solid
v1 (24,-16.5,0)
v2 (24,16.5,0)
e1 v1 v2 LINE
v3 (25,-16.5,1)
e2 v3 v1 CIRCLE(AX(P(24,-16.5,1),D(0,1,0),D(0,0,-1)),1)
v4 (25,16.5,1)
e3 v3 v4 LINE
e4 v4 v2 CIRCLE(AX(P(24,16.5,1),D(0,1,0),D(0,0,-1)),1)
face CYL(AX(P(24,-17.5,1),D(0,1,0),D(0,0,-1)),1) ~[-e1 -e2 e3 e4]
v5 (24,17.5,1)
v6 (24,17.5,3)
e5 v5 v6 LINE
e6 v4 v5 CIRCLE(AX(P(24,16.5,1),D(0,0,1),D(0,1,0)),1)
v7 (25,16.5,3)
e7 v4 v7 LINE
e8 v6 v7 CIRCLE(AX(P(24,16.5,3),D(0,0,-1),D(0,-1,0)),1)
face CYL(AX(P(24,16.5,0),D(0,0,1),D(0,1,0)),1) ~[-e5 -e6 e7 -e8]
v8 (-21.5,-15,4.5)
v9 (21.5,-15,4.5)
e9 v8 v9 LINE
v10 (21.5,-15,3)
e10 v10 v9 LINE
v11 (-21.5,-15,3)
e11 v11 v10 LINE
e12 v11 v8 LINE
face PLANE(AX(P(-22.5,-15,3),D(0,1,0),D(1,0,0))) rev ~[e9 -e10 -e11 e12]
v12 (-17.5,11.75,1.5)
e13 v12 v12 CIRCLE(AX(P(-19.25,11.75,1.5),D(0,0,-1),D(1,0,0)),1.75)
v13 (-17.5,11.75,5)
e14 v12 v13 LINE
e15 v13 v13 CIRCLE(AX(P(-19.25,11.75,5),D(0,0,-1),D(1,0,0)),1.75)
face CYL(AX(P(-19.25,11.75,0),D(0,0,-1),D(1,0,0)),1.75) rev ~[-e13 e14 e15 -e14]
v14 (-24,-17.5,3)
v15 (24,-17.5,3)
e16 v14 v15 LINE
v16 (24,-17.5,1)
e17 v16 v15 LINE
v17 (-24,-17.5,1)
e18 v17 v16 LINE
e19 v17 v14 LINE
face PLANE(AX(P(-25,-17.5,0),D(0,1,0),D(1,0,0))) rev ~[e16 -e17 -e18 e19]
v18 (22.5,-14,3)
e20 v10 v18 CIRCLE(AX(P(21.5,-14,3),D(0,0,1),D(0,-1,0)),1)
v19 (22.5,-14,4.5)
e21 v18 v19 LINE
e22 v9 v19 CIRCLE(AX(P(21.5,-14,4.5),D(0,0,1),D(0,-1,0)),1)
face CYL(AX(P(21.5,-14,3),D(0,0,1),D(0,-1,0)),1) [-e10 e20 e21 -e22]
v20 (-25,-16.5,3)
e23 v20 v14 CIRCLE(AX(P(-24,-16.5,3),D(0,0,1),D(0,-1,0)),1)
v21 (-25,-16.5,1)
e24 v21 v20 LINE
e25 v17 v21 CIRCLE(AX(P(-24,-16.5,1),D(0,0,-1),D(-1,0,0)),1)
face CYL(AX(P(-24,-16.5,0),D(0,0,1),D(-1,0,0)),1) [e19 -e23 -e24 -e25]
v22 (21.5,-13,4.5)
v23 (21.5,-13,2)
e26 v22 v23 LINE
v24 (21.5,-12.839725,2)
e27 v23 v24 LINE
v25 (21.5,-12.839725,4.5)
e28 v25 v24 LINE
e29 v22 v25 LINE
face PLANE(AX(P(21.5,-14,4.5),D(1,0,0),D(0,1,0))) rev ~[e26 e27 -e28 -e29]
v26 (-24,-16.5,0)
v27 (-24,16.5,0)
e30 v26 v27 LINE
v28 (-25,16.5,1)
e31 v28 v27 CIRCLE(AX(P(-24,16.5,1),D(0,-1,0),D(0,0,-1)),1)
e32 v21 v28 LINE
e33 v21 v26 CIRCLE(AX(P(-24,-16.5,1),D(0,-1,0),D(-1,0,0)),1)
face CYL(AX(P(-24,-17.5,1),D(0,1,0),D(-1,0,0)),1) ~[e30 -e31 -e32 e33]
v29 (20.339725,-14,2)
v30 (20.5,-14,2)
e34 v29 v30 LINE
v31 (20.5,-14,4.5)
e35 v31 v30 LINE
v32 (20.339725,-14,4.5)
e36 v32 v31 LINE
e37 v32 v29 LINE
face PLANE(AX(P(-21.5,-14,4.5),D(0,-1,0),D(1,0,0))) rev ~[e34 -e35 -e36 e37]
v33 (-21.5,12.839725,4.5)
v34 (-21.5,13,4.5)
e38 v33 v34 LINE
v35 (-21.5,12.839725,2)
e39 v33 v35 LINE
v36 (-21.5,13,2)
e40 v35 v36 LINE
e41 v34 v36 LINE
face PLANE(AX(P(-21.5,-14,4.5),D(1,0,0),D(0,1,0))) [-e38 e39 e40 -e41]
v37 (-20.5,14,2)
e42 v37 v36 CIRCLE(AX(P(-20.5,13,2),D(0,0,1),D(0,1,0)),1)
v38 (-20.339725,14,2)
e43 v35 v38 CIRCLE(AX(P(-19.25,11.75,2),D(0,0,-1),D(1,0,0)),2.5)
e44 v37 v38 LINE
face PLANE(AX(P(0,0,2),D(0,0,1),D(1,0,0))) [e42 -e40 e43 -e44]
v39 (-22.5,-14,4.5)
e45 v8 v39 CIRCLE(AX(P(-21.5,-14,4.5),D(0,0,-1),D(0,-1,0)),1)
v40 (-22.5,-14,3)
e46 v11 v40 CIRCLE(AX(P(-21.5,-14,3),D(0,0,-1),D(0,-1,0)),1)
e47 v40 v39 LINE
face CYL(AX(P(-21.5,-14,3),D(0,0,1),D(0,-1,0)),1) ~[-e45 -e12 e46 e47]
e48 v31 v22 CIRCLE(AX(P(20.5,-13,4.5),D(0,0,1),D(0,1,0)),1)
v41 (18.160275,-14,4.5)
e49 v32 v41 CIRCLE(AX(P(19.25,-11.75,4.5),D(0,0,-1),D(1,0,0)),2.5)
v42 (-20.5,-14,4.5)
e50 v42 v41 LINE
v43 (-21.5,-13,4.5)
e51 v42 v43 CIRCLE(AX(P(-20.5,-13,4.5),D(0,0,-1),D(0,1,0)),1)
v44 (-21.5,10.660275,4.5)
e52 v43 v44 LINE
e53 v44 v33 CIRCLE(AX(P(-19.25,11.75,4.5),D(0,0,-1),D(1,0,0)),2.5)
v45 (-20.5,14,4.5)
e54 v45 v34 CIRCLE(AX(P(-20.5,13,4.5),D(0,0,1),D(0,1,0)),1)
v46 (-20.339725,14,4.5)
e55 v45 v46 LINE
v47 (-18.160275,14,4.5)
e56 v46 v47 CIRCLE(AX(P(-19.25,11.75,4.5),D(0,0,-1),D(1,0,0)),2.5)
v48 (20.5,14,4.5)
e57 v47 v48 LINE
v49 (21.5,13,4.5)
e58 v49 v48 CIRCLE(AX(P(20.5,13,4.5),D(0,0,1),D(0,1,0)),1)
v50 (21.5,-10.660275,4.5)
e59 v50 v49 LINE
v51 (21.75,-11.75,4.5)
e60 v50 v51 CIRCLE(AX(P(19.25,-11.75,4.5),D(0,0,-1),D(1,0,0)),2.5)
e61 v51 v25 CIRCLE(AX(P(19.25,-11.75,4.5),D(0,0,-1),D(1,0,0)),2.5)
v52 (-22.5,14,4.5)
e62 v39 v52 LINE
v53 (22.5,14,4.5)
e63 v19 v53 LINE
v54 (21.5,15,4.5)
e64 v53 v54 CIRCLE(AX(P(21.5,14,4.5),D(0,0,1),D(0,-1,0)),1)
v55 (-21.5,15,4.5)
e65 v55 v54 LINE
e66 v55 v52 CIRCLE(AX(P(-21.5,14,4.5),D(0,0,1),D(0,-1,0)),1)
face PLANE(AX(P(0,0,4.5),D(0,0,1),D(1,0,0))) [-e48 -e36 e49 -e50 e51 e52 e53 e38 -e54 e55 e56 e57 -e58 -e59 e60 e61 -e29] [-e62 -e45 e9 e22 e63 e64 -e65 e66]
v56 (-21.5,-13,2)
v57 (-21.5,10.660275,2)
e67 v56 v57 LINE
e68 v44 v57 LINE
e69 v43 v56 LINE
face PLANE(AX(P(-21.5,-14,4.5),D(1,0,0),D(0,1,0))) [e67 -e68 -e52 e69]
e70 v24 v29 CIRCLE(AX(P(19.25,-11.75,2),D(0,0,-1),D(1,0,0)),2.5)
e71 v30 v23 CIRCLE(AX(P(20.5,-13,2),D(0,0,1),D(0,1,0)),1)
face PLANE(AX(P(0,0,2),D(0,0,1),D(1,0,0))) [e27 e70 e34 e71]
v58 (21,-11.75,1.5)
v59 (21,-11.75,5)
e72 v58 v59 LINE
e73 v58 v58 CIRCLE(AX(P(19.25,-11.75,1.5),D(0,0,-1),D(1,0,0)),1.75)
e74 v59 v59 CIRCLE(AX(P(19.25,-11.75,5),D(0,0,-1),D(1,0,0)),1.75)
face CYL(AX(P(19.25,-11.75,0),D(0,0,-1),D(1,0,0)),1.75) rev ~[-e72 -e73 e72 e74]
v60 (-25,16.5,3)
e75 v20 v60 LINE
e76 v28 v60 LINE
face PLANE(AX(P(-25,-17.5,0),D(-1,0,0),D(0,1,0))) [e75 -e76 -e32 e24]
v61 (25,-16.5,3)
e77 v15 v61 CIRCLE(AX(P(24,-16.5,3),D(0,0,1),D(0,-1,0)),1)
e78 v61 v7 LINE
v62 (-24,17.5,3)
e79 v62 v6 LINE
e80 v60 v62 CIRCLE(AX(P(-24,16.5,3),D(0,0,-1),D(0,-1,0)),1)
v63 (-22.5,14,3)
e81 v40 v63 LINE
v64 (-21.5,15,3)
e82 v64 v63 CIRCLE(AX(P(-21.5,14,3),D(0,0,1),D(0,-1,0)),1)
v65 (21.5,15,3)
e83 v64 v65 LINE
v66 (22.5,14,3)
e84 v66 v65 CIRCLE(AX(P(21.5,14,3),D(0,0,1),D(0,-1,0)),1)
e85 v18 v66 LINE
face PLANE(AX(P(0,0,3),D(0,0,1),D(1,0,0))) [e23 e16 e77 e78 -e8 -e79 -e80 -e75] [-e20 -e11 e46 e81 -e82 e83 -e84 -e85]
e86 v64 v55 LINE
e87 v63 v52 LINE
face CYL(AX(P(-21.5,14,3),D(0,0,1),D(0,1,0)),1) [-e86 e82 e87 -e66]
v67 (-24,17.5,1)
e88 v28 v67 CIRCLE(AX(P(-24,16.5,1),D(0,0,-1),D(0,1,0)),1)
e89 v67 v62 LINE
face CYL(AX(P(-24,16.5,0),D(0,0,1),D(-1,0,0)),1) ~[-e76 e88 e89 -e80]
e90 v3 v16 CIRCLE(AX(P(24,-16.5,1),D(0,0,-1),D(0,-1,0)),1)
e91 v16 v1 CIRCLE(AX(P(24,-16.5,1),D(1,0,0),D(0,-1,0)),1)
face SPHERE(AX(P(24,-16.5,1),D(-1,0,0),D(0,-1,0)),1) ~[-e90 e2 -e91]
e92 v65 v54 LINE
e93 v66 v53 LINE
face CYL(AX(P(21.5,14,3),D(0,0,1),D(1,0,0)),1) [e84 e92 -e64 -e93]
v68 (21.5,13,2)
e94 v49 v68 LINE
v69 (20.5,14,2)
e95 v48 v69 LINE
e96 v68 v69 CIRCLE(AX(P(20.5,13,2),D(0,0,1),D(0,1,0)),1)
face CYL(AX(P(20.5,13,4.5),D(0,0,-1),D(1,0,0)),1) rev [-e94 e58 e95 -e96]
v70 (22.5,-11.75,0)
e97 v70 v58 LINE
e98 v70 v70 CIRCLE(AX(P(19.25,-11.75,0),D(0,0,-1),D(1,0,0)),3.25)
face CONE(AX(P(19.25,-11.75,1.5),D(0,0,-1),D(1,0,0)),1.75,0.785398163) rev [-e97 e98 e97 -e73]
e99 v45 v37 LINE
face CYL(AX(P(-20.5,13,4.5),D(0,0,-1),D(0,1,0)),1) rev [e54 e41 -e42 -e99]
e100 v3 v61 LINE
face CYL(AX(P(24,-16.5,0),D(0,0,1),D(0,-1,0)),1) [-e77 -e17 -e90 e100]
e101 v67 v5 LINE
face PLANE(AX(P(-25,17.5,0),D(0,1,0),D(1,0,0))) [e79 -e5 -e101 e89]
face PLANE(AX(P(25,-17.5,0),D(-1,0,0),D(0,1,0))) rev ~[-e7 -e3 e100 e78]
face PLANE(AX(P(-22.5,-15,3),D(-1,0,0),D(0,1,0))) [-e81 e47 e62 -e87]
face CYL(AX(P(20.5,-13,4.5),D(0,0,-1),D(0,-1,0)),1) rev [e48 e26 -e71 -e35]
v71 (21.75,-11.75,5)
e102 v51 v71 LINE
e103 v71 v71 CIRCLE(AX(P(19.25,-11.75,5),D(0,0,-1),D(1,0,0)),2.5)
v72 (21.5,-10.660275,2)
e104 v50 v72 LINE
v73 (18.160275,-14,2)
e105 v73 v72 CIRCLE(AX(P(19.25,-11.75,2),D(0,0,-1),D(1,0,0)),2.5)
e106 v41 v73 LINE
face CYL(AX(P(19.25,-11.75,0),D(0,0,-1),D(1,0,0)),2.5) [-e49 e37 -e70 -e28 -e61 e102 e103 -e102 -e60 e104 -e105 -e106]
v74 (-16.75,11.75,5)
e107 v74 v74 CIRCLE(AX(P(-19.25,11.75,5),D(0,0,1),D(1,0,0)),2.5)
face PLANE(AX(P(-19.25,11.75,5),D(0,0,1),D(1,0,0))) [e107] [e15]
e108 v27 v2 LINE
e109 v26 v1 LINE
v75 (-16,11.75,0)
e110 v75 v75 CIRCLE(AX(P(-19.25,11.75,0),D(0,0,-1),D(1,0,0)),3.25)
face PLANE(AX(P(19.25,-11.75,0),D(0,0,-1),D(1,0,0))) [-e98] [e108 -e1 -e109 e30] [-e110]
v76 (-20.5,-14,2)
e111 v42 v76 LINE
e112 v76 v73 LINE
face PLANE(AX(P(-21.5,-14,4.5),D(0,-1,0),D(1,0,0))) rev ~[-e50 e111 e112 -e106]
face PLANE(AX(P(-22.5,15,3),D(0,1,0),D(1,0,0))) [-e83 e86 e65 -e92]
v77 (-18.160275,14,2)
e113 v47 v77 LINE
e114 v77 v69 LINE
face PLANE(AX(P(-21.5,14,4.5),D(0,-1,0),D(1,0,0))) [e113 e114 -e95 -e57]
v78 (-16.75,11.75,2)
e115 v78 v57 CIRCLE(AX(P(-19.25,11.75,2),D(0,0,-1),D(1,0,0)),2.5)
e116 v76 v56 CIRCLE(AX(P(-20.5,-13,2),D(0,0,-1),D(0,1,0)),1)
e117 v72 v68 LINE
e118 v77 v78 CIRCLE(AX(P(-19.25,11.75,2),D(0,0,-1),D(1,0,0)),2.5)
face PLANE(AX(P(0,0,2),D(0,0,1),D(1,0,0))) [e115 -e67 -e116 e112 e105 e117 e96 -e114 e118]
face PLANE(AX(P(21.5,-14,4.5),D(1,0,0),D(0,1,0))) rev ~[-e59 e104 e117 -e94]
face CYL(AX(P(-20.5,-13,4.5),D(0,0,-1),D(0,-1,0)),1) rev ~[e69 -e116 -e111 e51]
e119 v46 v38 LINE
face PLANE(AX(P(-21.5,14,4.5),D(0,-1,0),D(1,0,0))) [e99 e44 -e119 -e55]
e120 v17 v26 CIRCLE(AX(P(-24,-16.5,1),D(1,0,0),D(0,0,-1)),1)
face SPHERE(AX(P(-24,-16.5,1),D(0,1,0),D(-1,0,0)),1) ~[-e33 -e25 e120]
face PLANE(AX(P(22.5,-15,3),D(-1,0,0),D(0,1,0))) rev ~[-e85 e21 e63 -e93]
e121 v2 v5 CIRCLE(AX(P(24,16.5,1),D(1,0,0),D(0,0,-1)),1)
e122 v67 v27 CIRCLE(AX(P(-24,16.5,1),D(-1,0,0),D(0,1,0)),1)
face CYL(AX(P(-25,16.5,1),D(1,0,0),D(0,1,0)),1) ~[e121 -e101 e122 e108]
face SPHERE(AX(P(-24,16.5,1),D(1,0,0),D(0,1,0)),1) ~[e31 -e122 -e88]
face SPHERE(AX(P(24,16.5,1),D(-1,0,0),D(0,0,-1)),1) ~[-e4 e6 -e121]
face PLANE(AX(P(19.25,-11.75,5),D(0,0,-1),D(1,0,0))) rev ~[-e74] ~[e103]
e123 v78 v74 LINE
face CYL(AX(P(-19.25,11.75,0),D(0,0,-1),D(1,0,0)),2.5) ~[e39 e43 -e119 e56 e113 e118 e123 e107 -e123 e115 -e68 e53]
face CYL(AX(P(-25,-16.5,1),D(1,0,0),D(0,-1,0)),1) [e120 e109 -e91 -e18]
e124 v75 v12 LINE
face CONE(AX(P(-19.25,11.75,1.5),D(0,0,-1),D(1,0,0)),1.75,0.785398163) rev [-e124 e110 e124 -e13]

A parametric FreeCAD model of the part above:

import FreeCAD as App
import Part
import Sketcher
Q = App.Units.Quantity


def edges_at(feature, points):
    """Names of the edges that pass closest to the given points."""
    edges = feature.Shape.Edges
    near = lambda p: min(range(len(edges)), key=lambda i: edges[i].distToShape(Part.Vertex(*p))[0])
    return sorted({f"Edge{near(p) + 1}" for p in points})

doc = App.newDocument("Part")
body = doc.addObject("PartDesign::Body", "Body")

# Sketch on XY plane
sketch1 = doc.addObject("Sketcher::SketchObject", "Sketch")
body.addObject(sketch1)
sketch1.AttachmentSupport = (doc.XY_Plane, [""])
sketch1.MapMode = "FlatFace"
sketch1.addGeometry([
    Part.LineSegment(App.Vector(-25, 18, 0), App.Vector(-25, -18, 0)),
    Part.LineSegment(App.Vector(-25, -18, 0), App.Vector(25, -18, 0)),
    Part.LineSegment(App.Vector(25, -18, 0), App.Vector(25, 18, 0)),
    Part.LineSegment(App.Vector(25, 18, 0), App.Vector(-25, 18, 0)),
], False)
sketch1.addConstraint([
    Sketcher.Constraint("Coincident", 0, 2, 1, 1),
    Sketcher.Constraint("Coincident", 1, 2, 2, 1),
    Sketcher.Constraint("Coincident", 2, 2, 3, 1),
    Sketcher.Constraint("Coincident", 3, 2, 0, 1),
    Sketcher.Constraint("Vertical", 0),
    Sketcher.Constraint("Horizontal", 1),
    Sketcher.Constraint("Vertical", 2),
    Sketcher.Constraint("Horizontal", 3),
    Sketcher.Constraint("Symmetric", 0, 2, 2, 2, -1, 1),
    Sketcher.Constraint("DistanceX", 1, 1, 1, 2, Q("50 mm")),
    Sketcher.Constraint("DistanceY", 0, 2, 0, 1, Q("35 mm")),
])
pad1 = doc.addObject("PartDesign::Pad", "Pad")
body.addObject(pad1)
pad1.Profile = sketch1
pad1.Length = 3

# Sketch on XY plane
sketch2 = doc.addObject("Sketcher::SketchObject", "Sketch001")
body.addObject(sketch2)
sketch2.AttachmentSupport = (doc.XY_Plane, [""])
sketch2.MapMode = "FlatFace"
sketch2.AttachmentOffset = App.Placement(App.Vector(0, 0, 3), App.Rotation())
sketch2.addGeometry([
    Part.LineSegment(App.Vector(-22, 15, 0), App.Vector(-22, -15, 0)),
    Part.LineSegment(App.Vector(-22, -15, 0), App.Vector(22, -15, 0)),
    Part.LineSegment(App.Vector(22, -15, 0), App.Vector(22, 15, 0)),
    Part.LineSegment(App.Vector(22, 15, 0), App.Vector(-22, 15, 0)),
], False)
sketch2.addConstraint([
    Sketcher.Constraint("Coincident", 0, 2, 1, 1),
    Sketcher.Constraint("Coincident", 1, 2, 2, 1),
    Sketcher.Constraint("Coincident", 2, 2, 3, 1),
    Sketcher.Constraint("Coincident", 3, 2, 0, 1),
    Sketcher.Constraint("Vertical", 0),
    Sketcher.Constraint("Horizontal", 1),
    Sketcher.Constraint("Vertical", 2),
    Sketcher.Constraint("Horizontal", 3),
    Sketcher.Constraint("Symmetric", 0, 2, 2, 2, -1, 1),
    Sketcher.Constraint("DistanceX", 1, 1, 1, 2, Q("45 mm")),
    Sketcher.Constraint("DistanceY", 0, 2, 0, 1, Q("30 mm")),
])
pad2 = doc.addObject("PartDesign::Pad", "Pad001")
body.addObject(pad2)
pad2.Profile = sketch2
pad2.Length = 1.5

# Sketch on XY plane
sketch3 = doc.addObject("Sketcher::SketchObject", "Sketch002")
body.addObject(sketch3)
sketch3.AttachmentSupport = (doc.XY_Plane, [""])
sketch3.MapMode = "FlatFace"
sketch3.AttachmentOffset = App.Placement(App.Vector(0, 0, 4.5), App.Rotation())
sketch3.addGeometry([
    Part.LineSegment(App.Vector(-22, 14, 0), App.Vector(-22, -14, 0)),
    Part.LineSegment(App.Vector(-22, -14, 0), App.Vector(22, -14, 0)),
    Part.LineSegment(App.Vector(22, -14, 0), App.Vector(22, 14, 0)),
    Part.LineSegment(App.Vector(22, 14, 0), App.Vector(-22, 14, 0)),
], False)
sketch3.addConstraint([
    Sketcher.Constraint("Coincident", 0, 2, 1, 1),
    Sketcher.Constraint("Coincident", 1, 2, 2, 1),
    Sketcher.Constraint("Coincident", 2, 2, 3, 1),
    Sketcher.Constraint("Coincident", 3, 2, 0, 1),
    Sketcher.Constraint("Vertical", 0),
    Sketcher.Constraint("Horizontal", 1),
    Sketcher.Constraint("Vertical", 2),
    Sketcher.Constraint("Horizontal", 3),
    Sketcher.Constraint("Symmetric", 0, 2, 2, 2, -1, 1),
    Sketcher.Constraint("DistanceX", 1, 1, 1, 2, Q("43 mm")),
    Sketcher.Constraint("DistanceY", 0, 2, 0, 1, Q("28 mm")),
])
pocket1 = doc.addObject("PartDesign::Pocket", "Pocket")
body.addObject(pocket1)
pocket1.Profile = sketch3
pocket1.Length = 2.5
doc.recompute()

fillet = doc.addObject("PartDesign::Fillet", "Fillet")
body.addObject(fillet)
fillet.Base = (pocket1, edges_at(pocket1, [
    (0, 17.5, 0),
    (-25, 17.5, 1.5),
    (-25, 0, 0),
    (-25, -17.5, 1.5),
    (0, -17.5, 0),
    (25, -17.5, 1.5),
    (25, 0, 0),
    (25, 17.5, 1.5),
]))
fillet.Radius = 1
doc.recompute()

fillet2 = doc.addObject("PartDesign::Fillet", "Fillet001")
body.addObject(fillet2)
fillet2.Base = (fillet, edges_at(fillet, [
    (-21.5, -14, 3.25),
    (22.5, -15, 3.75),
    (22.5, 15, 3.75),
    (-22.5, 15, 3.75),
    (-22.5, -15, 3.75),
    (21.5, 14, 3.25),
    (-21.5, 14, 3.25),
    (21.5, -14, 3.25),
]))
fillet2.Radius = 1

# Sketch on XY plane
sketch4 = doc.addObject("Sketcher::SketchObject", "Sketch003")
body.addObject(sketch4)
sketch4.AttachmentSupport = (doc.XY_Plane, [""])
sketch4.MapMode = "FlatFace"
sketch4.addGeometry(Part.Circle(App.Vector(-19.2, 11.8, 0), App.Vector(0, 0, 1), 2.5), False)
sketch4.addConstraint([
    Sketcher.Constraint("Diameter", 0, Q("5 mm")),
    Sketcher.Constraint("DistanceX", 0, 3, -1, 1, Q("19.25 mm")),
    Sketcher.Constraint("DistanceY", -1, 1, 0, 3, Q("11.75 mm")),
])
pad3 = doc.addObject("PartDesign::Pad", "Pad002")
body.addObject(pad3)
pad3.Profile = sketch4
pad3.Length = 5

# Sketch on XY plane
sketch5 = doc.addObject("Sketcher::SketchObject", "Sketch004")
body.addObject(sketch5)
sketch5.AttachmentSupport = (doc.XY_Plane, [""])
sketch5.MapMode = "FlatFace"
sketch5.addGeometry(Part.Circle(App.Vector(19.2, -11.8, 0), App.Vector(0, 0, 1), 2.5), False)
sketch5.addConstraint([
    Sketcher.Constraint("Diameter", 0, Q("5 mm")),
    Sketcher.Constraint("DistanceX", -1, 1, 0, 3, Q("19.25 mm")),
    Sketcher.Constraint("DistanceY", 0, 3, -1, 1, Q("11.75 mm")),
])
pad4 = doc.addObject("PartDesign::Pad", "Pad003")
body.addObject(pad4)
pad4.Profile = sketch5
pad4.Length = 5

# Sketch on XY plane
sketch6 = doc.addObject("Sketcher::SketchObject", "Sketch005")
body.addObject(sketch6)
sketch6.AttachmentSupport = (doc.XY_Plane, [""])
sketch6.MapMode = "FlatFace"
sketch6.addGeometry(Part.Circle(App.Vector(-19.2, 11.8, 0), App.Vector(0, 0, 1), 1.8), False)
sketch6.addConstraint([
    Sketcher.Constraint("Diameter", 0, Q("3.5 mm")),
    Sketcher.Constraint("DistanceX", 0, 3, -1, 1, Q("19.25 mm")),
    Sketcher.Constraint("DistanceY", -1, 1, 0, 3, Q("11.75 mm")),
])
pocket2 = doc.addObject("PartDesign::Pocket", "Pocket001")
body.addObject(pocket2)
pocket2.Profile = sketch6
pocket2.Length = 5
pocket2.Reversed = True

# Sketch on XY plane
sketch7 = doc.addObject("Sketcher::SketchObject", "Sketch006")
body.addObject(sketch7)
sketch7.AttachmentSupport = (doc.XY_Plane, [""])
sketch7.MapMode = "FlatFace"
sketch7.addGeometry(Part.Circle(App.Vector(19.2, -11.8, 0), App.Vector(0, 0, 1), 1.8), False)
sketch7.addConstraint([
    Sketcher.Constraint("Diameter", 0, Q("3.5 mm")),
    Sketcher.Constraint("DistanceX", -1, 1, 0, 3, Q("19.25 mm")),
    Sketcher.Constraint("DistanceY", 0, 3, -1, 1, Q("11.75 mm")),
])
pocket3 = doc.addObject("PartDesign::Pocket", "Pocket002")
body.addObject(pocket3)
pocket3.Profile = sketch7
pocket3.Length = 5
pocket3.Reversed = True
doc.recompute()

chamfer = doc.addObject("PartDesign::Chamfer", "Chamfer")
body.addObject(chamfer)
chamfer.Base = (pocket3, edges_at(pocket3, [(-21, 11.75, 0)]))
chamfer.Size = 1.5
doc.recompute()

chamfer2 = doc.addObject("PartDesign::Chamfer", "Chamfer001")
body.addObject(chamfer2)
chamfer2.Base = (chamfer, edges_at(chamfer, [(17.5, -11.75, 0)]))
chamfer2.Size = 1.5

doc.recompute()
